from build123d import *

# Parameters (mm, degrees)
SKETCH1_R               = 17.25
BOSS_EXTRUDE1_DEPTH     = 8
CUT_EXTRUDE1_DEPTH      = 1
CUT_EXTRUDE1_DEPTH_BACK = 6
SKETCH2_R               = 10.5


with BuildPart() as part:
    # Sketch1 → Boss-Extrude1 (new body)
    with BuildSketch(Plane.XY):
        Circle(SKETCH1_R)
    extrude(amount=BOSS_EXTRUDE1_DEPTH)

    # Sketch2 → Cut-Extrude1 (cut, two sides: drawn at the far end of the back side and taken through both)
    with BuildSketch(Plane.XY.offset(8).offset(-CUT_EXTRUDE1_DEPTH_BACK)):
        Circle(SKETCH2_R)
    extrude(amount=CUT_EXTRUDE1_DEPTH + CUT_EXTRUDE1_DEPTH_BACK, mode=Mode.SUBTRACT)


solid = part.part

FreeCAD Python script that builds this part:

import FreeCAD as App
import Part
import Sketcher
from FreeCAD import Vector

doc = App.newDocument("Part")
body = doc.addObject("PartDesign::Body", "Body")

sketch1 = doc.addObject("Sketcher::SketchObject", "Sketch")
body.addObject(sketch1)
sketch1.AttachmentSupport = (doc.XY_Plane, [""])
sketch1.MapMode = "FlatFace"
sketch1.addGeometry(Part.Circle(Vector(0, 0, 0), Vector(0, 0, 1), 17), False)
sketch1.addConstraint([
    Sketcher.Constraint("Coincident", 0, 3, -1, 1),
    Sketcher.Constraint("Diameter", 0, 34.5),
])
pad1 = doc.addObject("PartDesign::Pad", "Pad")
body.addObject(pad1)
pad1.Profile = sketch1
pad1.Length = 8

sketch2 = doc.addObject("Sketcher::SketchObject", "Sketch001")
body.addObject(sketch2)
sketch2.AttachmentSupport = (doc.XY_Plane, [""])
sketch2.MapMode = "FlatFace"
sketch2.AttachmentOffset = App.Placement(Vector(0, 0, 8), App.Rotation())
sketch2.addGeometry(Part.Circle(Vector(0, 0, 0), Vector(0, 0, 1), 10), False)
sketch2.addConstraint([
    Sketcher.Constraint("Coincident", 0, 3, -1, 1),
    Sketcher.Constraint("Diameter", 0, 21.0),
])
pocket1 = doc.addObject("PartDesign::Pocket", "Pocket")
body.addObject(pocket1)
pocket1.Profile = sketch2
pocket1.Type = "TwoLengths"
pocket1.Length = 1
pocket1.Length2 = 6
pocket1.Reversed = True

doc.recompute()
